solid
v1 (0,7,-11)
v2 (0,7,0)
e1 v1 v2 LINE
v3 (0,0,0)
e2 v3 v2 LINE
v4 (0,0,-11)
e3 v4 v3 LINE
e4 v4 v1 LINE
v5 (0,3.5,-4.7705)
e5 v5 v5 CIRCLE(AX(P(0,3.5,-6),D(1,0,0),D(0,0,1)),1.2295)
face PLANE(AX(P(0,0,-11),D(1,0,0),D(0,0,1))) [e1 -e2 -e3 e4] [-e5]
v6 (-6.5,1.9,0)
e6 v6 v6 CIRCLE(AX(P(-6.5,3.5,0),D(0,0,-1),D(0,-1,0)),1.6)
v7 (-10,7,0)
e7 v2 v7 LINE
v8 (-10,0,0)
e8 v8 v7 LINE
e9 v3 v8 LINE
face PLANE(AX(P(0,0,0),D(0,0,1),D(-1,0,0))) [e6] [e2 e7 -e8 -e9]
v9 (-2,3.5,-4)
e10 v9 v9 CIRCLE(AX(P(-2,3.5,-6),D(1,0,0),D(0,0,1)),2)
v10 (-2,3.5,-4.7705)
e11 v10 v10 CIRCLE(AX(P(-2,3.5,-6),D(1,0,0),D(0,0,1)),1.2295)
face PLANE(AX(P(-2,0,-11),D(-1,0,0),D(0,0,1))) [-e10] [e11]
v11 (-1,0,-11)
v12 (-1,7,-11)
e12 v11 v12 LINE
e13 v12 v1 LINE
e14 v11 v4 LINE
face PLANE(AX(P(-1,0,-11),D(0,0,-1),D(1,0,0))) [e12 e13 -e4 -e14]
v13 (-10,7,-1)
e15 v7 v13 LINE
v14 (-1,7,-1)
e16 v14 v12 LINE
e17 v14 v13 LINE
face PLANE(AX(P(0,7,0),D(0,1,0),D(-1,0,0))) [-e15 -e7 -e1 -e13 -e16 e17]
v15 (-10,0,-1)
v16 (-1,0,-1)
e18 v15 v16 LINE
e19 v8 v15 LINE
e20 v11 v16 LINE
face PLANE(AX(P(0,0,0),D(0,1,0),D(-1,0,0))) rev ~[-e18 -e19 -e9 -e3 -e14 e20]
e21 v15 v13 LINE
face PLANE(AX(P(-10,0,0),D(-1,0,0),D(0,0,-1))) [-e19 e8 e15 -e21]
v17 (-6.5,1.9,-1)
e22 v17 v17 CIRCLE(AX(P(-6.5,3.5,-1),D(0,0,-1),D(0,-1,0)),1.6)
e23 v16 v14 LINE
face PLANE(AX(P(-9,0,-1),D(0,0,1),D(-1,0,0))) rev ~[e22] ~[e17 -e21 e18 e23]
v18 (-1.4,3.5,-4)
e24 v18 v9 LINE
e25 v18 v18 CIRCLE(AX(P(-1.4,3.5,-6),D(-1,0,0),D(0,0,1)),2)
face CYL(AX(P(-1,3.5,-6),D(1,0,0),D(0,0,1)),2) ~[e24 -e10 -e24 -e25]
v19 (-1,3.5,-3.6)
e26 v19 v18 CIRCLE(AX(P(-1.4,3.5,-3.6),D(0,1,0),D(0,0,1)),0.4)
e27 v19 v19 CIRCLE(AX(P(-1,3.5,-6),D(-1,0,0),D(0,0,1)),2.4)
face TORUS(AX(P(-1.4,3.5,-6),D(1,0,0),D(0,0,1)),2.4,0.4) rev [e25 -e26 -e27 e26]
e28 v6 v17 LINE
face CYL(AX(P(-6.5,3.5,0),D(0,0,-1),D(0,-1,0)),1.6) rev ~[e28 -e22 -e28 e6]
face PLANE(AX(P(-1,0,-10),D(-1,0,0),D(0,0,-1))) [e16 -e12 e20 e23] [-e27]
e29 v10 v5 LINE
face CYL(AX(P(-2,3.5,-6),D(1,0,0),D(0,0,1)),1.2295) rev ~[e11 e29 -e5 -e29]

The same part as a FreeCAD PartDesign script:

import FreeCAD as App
import Part
import Sketcher

V = App.Vector


def edges_at(feature, points):
    """Names of the edges that pass closest to the given points."""
    edges = feature.Shape.Edges
    near = lambda p: min(range(len(edges)), key=lambda i: edges[i].distToShape(Part.Vertex(*p))[0])
    return sorted({f"Edge{near(p) + 1}" for p in points})

doc = App.newDocument("Part")
body = doc.addObject("PartDesign::Body", "Body")

sketch1 = body.newObject("Sketcher::SketchObject", "Sketch")
sketch1.AttachmentSupport = (doc.getObject("XZ_Plane"), [""])
sketch1.MapMode = "FlatFace"
sketch1.addGeometry([
    Part.LineSegment(V(0, -11, 0), V(-1, -11, 0)),
    Part.LineSegment(V(-1, -11, 0), V(-1, -1, 0)),
    Part.LineSegment(V(-1, -1, 0), V(-10, -1, 0)),
    Part.LineSegment(V(-10, -1, 0), V(-10, 0, 0)),
    Part.LineSegment(V(-10, 0, 0), V(0, 0, 0)),
    Part.LineSegment(V(0, 0, 0), V(0, -11, 0)),
], False)
sketch1.addConstraint([
    Sketcher.Constraint("Coincident", 0, 2, 1, 1),
    Sketcher.Constraint("Coincident", 1, 2, 2, 1),
    Sketcher.Constraint("Coincident", 2, 2, 3, 1),
    Sketcher.Constraint("Coincident", 3, 2, 4, 1),
    Sketcher.Constraint("Coincident", 4, 2, 5, 1),
    Sketcher.Constraint("Coincident", 5, 2, 0, 1),
    Sketcher.Constraint("Horizontal", 0),
    Sketcher.Constraint("Vertical", 1),
    Sketcher.Constraint("Horizontal", 2),
    Sketcher.Constraint("Vertical", 3),
    Sketcher.Constraint("Horizontal", 4),
    Sketcher.Constraint("Vertical", 5),
    Sketcher.Constraint("Coincident", 4, 2, -1, 1),
    Sketcher.Constraint("Equal", 4, 1),
    Sketcher.Constraint("Equal", 0, 3),
    Sketcher.Constraint("DistanceX", 0, 2, 0, 1, 1.0),
    Sketcher.Constraint("DistanceX", 4, 1, 4, 2, 10.0),
])
pad1 = body.newObject("PartDesign::Pad", "Pad")
pad1.Profile = sketch1
pad1.Length = 7
pad1.Reversed = True

sketch2 = body.newObject("Sketcher::SketchObject", "Sketch001")
sketch2.AttachmentSupport = (doc.getObject("XY_Plane"), [""])
sketch2.MapMode = "FlatFace"
sketch2.addGeometry(Part.Circle(V(-6.5, 3.5, 0), V(0, 0, 1), 1.6), False)
sketch2.addConstraint([
    Sketcher.Constraint("Diameter", 0, 3.2),
    Sketcher.Constraint("DistanceX", 0, 3, -1, 1, 6.5),
    Sketcher.Constraint("DistanceY", -1, 1, 0, 3, 3.5),
])
doc.recompute()
hole = body.newObject("PartDesign::Hole", "Hole")
hole.Profile = sketch2
hole.ThreadType = "None"
hole.Diameter = 3.2
hole.DepthType = "ThroughAll"

sketch3 = body.newObject("Sketcher::SketchObject", "Sketch002")
sketch3.AttachmentSupport = (doc.getObject("YZ_Plane"), [""])
sketch3.MapMode = "FlatFace"
sketch3.AttachmentOffset = App.Placement(V(0, 0, -1), App.Rotation())
sketch3.addGeometry(Part.Circle(V(3.5, -6, 0), V(0, 0, 1), 2), False)
sketch3.addConstraint([
    Sketcher.Constraint("Diameter", 0, 4.0),
    Sketcher.Constraint("DistanceY", 0, 3, -1, 1, 6.0),
    Sketcher.Constraint("DistanceX", -1, 1, 0, 3, 3.5),
])
pad2 = body.newObject("PartDesign::Pad", "Pad001")
pad2.Profile = sketch3
pad2.Length = 1
pad2.Reversed = True
doc.recompute()

fillet = body.newObject("PartDesign::Fillet", "Fillet")
fillet.Base = (pad2, edges_at(pad2, [(-1, 3.5, -8)]))
fillet.Radius = 0.4

sketch4 = body.newObject("Sketcher::SketchObject", "Sketch003")
sketch4.AttachmentSupport = (doc.getObject("YZ_Plane"), [""])
sketch4.MapMode = "FlatFace"
sketch4.AttachmentOffset = App.Placement(V(0, 0, -2), App.Rotation())
sketch4.addGeometry(Part.Circle(V(3.5, -6, 0), V(0, 0, 1), 1.2295), False)
sketch4.addConstraint([
    Sketcher.Constraint("Diameter", 0, 2.459),
    Sketcher.Constraint("DistanceY", 0, 3, -1, 1, 6.0),
    Sketcher.Constraint("DistanceX", -1, 1, 0, 3, 3.5),
])
doc.recompute()
hole2 = body.newObject("PartDesign::Hole", "Hole001")
hole2.Profile = sketch4
hole2.ThreadType = "None"
hole2.Diameter = 2.459
hole2.DepthType = "ThroughAll"
hole2.Reversed = True

doc.recompute()
